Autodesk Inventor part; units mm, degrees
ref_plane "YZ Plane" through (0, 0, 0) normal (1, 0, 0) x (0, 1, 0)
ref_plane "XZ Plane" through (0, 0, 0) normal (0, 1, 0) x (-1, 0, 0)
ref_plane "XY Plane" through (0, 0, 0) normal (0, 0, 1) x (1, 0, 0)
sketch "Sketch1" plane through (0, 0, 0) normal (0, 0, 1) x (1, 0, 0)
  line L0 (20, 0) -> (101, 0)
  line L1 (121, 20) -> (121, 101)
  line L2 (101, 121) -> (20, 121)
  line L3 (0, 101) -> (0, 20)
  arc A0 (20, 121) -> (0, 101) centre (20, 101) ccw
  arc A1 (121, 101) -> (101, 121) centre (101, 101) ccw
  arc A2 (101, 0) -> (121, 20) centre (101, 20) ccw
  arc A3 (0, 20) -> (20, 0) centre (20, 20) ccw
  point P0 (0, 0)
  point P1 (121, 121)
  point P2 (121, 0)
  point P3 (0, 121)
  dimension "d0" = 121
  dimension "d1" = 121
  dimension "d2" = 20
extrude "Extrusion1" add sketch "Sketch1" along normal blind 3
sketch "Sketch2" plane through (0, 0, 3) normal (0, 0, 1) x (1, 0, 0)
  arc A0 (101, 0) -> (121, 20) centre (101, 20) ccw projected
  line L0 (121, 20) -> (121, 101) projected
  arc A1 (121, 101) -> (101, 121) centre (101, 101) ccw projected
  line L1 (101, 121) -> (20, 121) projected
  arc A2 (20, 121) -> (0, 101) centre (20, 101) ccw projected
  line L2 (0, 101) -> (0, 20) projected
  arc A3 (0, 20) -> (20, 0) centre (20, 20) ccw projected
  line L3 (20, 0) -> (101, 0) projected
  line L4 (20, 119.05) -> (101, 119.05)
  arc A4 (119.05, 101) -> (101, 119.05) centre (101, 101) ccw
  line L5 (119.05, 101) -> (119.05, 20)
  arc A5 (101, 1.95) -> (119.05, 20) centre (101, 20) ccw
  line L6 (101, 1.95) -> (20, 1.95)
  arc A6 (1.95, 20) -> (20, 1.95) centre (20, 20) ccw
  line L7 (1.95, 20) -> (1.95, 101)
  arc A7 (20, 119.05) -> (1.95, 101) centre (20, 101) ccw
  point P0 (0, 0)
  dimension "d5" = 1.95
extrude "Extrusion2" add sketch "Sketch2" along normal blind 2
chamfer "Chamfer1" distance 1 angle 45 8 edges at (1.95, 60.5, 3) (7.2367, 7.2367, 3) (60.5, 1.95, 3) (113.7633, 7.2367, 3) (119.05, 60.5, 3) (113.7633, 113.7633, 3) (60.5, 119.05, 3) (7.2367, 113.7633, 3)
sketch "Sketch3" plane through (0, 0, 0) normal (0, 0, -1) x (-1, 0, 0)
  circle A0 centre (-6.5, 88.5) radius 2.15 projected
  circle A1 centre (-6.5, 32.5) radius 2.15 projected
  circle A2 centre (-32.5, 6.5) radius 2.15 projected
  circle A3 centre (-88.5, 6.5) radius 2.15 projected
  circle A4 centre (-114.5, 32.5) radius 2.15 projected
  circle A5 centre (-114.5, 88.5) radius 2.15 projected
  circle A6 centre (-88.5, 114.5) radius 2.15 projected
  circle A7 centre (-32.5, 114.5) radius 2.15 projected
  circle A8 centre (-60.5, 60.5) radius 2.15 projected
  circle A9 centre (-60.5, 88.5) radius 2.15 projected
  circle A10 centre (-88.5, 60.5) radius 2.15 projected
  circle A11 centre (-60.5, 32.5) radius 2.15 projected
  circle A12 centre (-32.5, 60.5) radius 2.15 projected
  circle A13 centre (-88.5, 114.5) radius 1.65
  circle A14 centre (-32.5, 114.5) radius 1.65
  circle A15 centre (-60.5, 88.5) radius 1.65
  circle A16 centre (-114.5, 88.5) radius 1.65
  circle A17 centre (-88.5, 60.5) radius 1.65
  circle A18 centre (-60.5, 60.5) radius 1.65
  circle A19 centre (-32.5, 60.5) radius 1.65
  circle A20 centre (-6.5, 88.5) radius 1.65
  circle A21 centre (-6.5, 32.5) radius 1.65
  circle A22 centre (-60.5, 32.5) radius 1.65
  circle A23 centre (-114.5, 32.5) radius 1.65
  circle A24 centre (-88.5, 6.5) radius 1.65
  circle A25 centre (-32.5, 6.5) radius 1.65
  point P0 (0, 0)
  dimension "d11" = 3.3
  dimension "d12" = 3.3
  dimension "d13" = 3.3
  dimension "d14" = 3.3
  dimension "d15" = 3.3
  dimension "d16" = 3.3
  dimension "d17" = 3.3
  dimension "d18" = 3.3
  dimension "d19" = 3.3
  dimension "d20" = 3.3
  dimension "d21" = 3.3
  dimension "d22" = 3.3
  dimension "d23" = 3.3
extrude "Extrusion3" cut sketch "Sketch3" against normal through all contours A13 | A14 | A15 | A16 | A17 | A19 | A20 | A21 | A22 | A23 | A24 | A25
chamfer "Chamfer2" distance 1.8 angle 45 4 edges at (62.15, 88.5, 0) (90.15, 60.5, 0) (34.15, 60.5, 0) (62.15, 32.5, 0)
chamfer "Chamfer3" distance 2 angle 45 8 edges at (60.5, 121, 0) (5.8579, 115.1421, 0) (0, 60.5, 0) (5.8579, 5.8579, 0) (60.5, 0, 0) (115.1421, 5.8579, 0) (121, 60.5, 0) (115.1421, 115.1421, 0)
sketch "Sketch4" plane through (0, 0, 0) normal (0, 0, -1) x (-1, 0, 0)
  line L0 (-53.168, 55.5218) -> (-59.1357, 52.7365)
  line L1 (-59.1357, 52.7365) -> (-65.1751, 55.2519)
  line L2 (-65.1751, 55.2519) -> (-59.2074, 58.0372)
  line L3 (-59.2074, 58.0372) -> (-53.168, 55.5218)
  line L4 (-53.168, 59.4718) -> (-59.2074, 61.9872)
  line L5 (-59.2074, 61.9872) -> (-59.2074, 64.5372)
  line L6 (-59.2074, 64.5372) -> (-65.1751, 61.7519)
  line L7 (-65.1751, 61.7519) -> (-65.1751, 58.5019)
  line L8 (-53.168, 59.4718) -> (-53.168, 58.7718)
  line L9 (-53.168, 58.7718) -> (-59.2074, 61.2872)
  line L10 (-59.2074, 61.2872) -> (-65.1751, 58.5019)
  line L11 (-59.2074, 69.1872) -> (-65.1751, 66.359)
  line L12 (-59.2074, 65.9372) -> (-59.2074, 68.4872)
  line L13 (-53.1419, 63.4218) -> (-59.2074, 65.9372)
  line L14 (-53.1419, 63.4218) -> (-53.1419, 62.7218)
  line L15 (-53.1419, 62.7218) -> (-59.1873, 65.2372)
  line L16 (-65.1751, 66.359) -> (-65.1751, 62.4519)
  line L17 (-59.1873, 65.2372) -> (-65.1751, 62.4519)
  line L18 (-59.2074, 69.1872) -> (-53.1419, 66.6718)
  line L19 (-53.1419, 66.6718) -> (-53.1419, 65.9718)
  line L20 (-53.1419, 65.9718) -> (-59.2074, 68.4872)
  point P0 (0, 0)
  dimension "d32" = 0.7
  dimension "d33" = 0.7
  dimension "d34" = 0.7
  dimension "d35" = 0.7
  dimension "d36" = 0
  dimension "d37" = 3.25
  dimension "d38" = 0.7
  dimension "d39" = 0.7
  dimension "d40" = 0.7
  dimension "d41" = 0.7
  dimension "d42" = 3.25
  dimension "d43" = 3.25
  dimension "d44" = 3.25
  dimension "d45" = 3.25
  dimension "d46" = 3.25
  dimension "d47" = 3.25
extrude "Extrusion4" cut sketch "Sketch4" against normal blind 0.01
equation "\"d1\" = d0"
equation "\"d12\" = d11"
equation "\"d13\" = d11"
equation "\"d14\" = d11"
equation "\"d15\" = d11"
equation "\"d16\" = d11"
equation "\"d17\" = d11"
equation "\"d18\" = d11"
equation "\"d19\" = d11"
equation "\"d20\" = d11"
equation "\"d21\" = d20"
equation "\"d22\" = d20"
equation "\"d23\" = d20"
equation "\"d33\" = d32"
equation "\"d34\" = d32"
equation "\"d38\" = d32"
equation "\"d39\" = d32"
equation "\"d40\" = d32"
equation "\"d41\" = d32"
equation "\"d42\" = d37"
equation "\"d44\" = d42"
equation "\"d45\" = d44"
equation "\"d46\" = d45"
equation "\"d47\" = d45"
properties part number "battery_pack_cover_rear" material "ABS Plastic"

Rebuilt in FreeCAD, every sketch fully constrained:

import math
import FreeCAD as App
import Part
import Sketcher
Q = App.Units.Quantity


def edges_at(feature, points):
    """Names of the edges that pass closest to the given points."""
    edges = feature.Shape.Edges
    near = lambda p: min(range(len(edges)), key=lambda i: edges[i].distToShape(Part.Vertex(*p))[0])
    return sorted({f"Edge{near(p) + 1}" for p in points})

doc = App.newDocument("Part")
body = doc.addObject("PartDesign::Body", "Body")

# Sketch on XY plane
sketch1 = body.newObject("Sketcher::SketchObject", "Sketch")
sketch1.AttachmentSupport = (doc.getObject("XY_Plane"), [""])
sketch1.MapMode = "FlatFace"
sketch1.addGeometry(Part.ArcOfCircle(Part.Circle(App.Vector(20, 20, 0), App.Vector(0, 0, 1), 20), math.radians(180), math.radians(270)), False)
sketch1.addGeometry(Part.LineSegment(App.Vector(20, 0, 0), App.Vector(101, 0, 0)), False)
sketch1.addGeometry(Part.ArcOfCircle(Part.Circle(App.Vector(101, 20, 0), App.Vector(0, 0, 1), 20), math.radians(-90), math.radians(0)), False)
sketch1.addGeometry(Part.LineSegment(App.Vector(121, 20, 0), App.Vector(121, 101, 0)), False)
sketch1.addGeometry(Part.ArcOfCircle(Part.Circle(App.Vector(101, 101, 0), App.Vector(0, 0, 1), 20), math.radians(0), math.radians(90)), False)
sketch1.addGeometry(Part.LineSegment(App.Vector(101, 121, 0), App.Vector(20, 121, 0)), False)
sketch1.addGeometry(Part.ArcOfCircle(Part.Circle(App.Vector(20, 101, 0), App.Vector(0, 0, 1), 20), math.radians(90), math.radians(180)), False)
sketch1.addGeometry(Part.LineSegment(App.Vector(0, 101, 0), App.Vector(0, 20, 0)), False)
sketch1.addConstraint(Sketcher.Constraint("Tangent", 0, 2, 1, 1))
sketch1.addConstraint(Sketcher.Constraint("Tangent", 1, 2, 2, 1))
sketch1.addConstraint(Sketcher.Constraint("Tangent", 2, 2, 3, 1))
sketch1.addConstraint(Sketcher.Constraint("Tangent", 3, 2, 4, 1))
sketch1.addConstraint(Sketcher.Constraint("Tangent", 4, 2, 5, 1))
sketch1.addConstraint(Sketcher.Constraint("Tangent", 5, 2, 6, 1))
sketch1.addConstraint(Sketcher.Constraint("Tangent", 6, 2, 7, 1))
sketch1.addConstraint(Sketcher.Constraint("Tangent", 7, 2, 0, 1))
sketch1.addConstraint(Sketcher.Constraint("Horizontal", 1))
sketch1.addConstraint(Sketcher.Constraint("Vertical", 3))
sketch1.addConstraint(Sketcher.Constraint("Horizontal", 5))
sketch1.addConstraint(Sketcher.Constraint("Vertical", 7))
sketch1.addConstraint(Sketcher.Constraint("Equal", 0, 2))
sketch1.addConstraint(Sketcher.Constraint("Equal", 2, 4))
sketch1.addConstraint(Sketcher.Constraint("Equal", 4, 6))
sketch1.addConstraint(Sketcher.Constraint("PointOnObject", 0, 2, -1))
sketch1.addConstraint(Sketcher.Constraint("PointOnObject", 6, 2, -2))
sketch1.addConstraint(Sketcher.Constraint("Equal", 5, 3))
sketch1.addConstraint(Sketcher.Constraint("Radius", 0, Q("20 mm")))
sketch1.addConstraint(Sketcher.Constraint("DistanceX", -1, 1, 2, 2, Q("121 mm")))
pad1 = body.newObject("PartDesign::Pad", "Pad")
pad1.Profile = sketch1
pad1.Length = 3

# Sketch on XY plane
sketch2 = body.newObject("Sketcher::SketchObject", "Sketch001")
sketch2.AttachmentSupport = (doc.getObject("XY_Plane"), [""])
sketch2.MapMode = "FlatFace"
sketch2.AttachmentOffset = App.Placement(App.Vector(0, 0, 3), App.Rotation())
sketch2.addGeometry(Part.LineSegment(App.Vector(20, 0, 0), App.Vector(101, 0, 0)), False)
sketch2.addGeometry(Part.ArcOfCircle(Part.Circle(App.Vector(101, 20, 0), App.Vector(0, 0, 1), 20), math.radians(-90), math.radians(0)), False)
sketch2.addGeometry(Part.LineSegment(App.Vector(121, 20, 0), App.Vector(121, 101, 0)), False)
sketch2.addGeometry(Part.ArcOfCircle(Part.Circle(App.Vector(101, 101, 0), App.Vector(0, 0, 1), 20), math.radians(0), math.radians(90)), False)
sketch2.addGeometry(Part.LineSegment(App.Vector(101, 121, 0), App.Vector(20, 121, 0)), False)
sketch2.addGeometry(Part.ArcOfCircle(Part.Circle(App.Vector(20, 101, 0), App.Vector(0, 0, 1), 20), math.radians(90), math.radians(180)), False)
sketch2.addGeometry(Part.LineSegment(App.Vector(0, 101, 0), App.Vector(0, 20, 0)), False)
sketch2.addGeometry(Part.ArcOfCircle(Part.Circle(App.Vector(20, 20, 0), App.Vector(0, 0, 1), 20), math.radians(180), math.radians(270)), False)
sketch2.addGeometry(Part.ArcOfCircle(Part.Circle(App.Vector(20, 101, 0), App.Vector(0, 0, 1), 18), math.radians(90), math.radians(180)), False)
sketch2.addGeometry(Part.LineSegment(App.Vector(20, 119, 0), App.Vector(101, 119, 0)), False)
sketch2.addGeometry(Part.ArcOfCircle(Part.Circle(App.Vector(101, 101, 0), App.Vector(0, 0, 1), 18), math.radians(0), math.radians(90)), False)
sketch2.addGeometry(Part.LineSegment(App.Vector(119, 101, 0), App.Vector(119, 20, 0)), False)
sketch2.addGeometry(Part.ArcOfCircle(Part.Circle(App.Vector(101, 20, 0), App.Vector(0, 0, 1), 18), math.radians(-90), math.radians(0)), False)
sketch2.addGeometry(Part.LineSegment(App.Vector(101, 2, 0), App.Vector(20, 2, 0)), False)
sketch2.addGeometry(Part.ArcOfCircle(Part.Circle(App.Vector(20, 20, 0), App.Vector(0, 0, 1), 18), math.radians(180), math.radians(270)), False)
sketch2.addGeometry(Part.LineSegment(App.Vector(2, 20, 0), App.Vector(2, 101, 0)), False)
sketch2.addConstraint(Sketcher.Constraint("Tangent", 0, 2, 1, 1))
sketch2.addConstraint(Sketcher.Constraint("Tangent", 1, 2, 2, 1))
sketch2.addConstraint(Sketcher.Constraint("Tangent", 2, 2, 3, 1))
sketch2.addConstraint(Sketcher.Constraint("Tangent", 3, 2, 4, 1))
sketch2.addConstraint(Sketcher.Constraint("Tangent", 4, 2, 5, 1))
sketch2.addConstraint(Sketcher.Constraint("Tangent", 5, 2, 6, 1))
sketch2.addConstraint(Sketcher.Constraint("Tangent", 6, 2, 7, 1))
sketch2.addConstraint(Sketcher.Constraint("Tangent", 7, 2, 0, 1))
sketch2.addConstraint(Sketcher.Constraint("Tangent", 8, 1, 9, 1))
sketch2.addConstraint(Sketcher.Constraint("Tangent", 9, 2, 10, 2))
sketch2.addConstraint(Sketcher.Constraint("Tangent", 10, 1, 11, 1))
sketch2.addConstraint(Sketcher.Constraint("Tangent", 11, 2, 12, 2))
sketch2.addConstraint(Sketcher.Constraint("Tangent", 12, 1, 13, 1))
sketch2.addConstraint(Sketcher.Constraint("Tangent", 13, 2, 14, 2))
sketch2.addConstraint(Sketcher.Constraint("Tangent", 14, 1, 15, 1))
sketch2.addConstraint(Sketcher.Constraint("Tangent", 15, 2, 8, 2))
sketch2.addConstraint(Sketcher.Constraint("Horizontal", 0))
sketch2.addConstraint(Sketcher.Constraint("Vertical", 2))
sketch2.addConstraint(Sketcher.Constraint("Horizontal", 4))
sketch2.addConstraint(Sketcher.Constraint("Vertical", 6))
sketch2.addConstraint(Sketcher.Constraint("Horizontal", 9))
sketch2.addConstraint(Sketcher.Constraint("Vertical", 11))
sketch2.addConstraint(Sketcher.Constraint("Horizontal", 13))
sketch2.addConstraint(Sketcher.Constraint("Vertical", 15))
sketch2.addConstraint(Sketcher.Constraint("Coincident", 8, 3, 5, 3))
sketch2.addConstraint(Sketcher.Constraint("Coincident", 10, 3, 3, 3))
sketch2.addConstraint(Sketcher.Constraint("Coincident", 12, 3, 1, 3))
sketch2.addConstraint(Sketcher.Constraint("Equal", 1, 3))
sketch2.addConstraint(Sketcher.Constraint("Equal", 3, 5))
sketch2.addConstraint(Sketcher.Constraint("Equal", 5, 7))
sketch2.addConstraint(Sketcher.Constraint("Equal", 12, 14))
sketch2.addConstraint(Sketcher.Constraint("PointOnObject", 0, 2, -1))
sketch2.addConstraint(Sketcher.Constraint("PointOnObject", 5, 2, -2))
sketch2.addConstraint(Sketcher.Constraint("Equal", 13, 2))
sketch2.addConstraint(Sketcher.Constraint("Radius", 1, Q("20 mm")))
sketch2.addConstraint(Sketcher.Constraint("DistanceX", 0, 1, 0, 2, Q("81 mm")))
sketch2.addConstraint(Sketcher.Constraint("DistanceY", -1, 1, 12, 1, Q("1.95 mm")))
pad2 = body.newObject("PartDesign::Pad", "Pad001")
pad2.Profile = sketch2
pad2.Length = 2
doc.recompute()

chamfer = body.newObject("PartDesign::Chamfer", "Chamfer")
chamfer.Base = (pad2, edges_at(pad2, [
    (1.95, 60.5, 3),
    (7.237, 7.237, 3),
    (60.5, 1.95, 3),
    (113.763, 7.237, 3),
    (119.05, 60.5, 3),
    (113.763, 113.763, 3),
    (60.5, 119.05, 3),
    (7.237, 113.763, 3),
]))
chamfer.Size = 1

# Sketch on XY plane
sketch3 = body.newObject("Sketcher::SketchObject", "Sketch002")
sketch3.AttachmentSupport = (doc.getObject("XY_Plane"), [""])
sketch3.MapMode = "FlatFace"
sketch3.addGeometry(Part.Circle(App.Vector(88.5, 114.5, 0), App.Vector(0, 0, 1), 1.6), False)
sketch3.addGeometry(Part.Circle(App.Vector(32.5, 114.5, 0), App.Vector(0, 0, 1), 1.6), False)
sketch3.addGeometry(Part.Circle(App.Vector(60.5, 88.5, 0), App.Vector(0, 0, 1), 1.6), False)
sketch3.addGeometry(Part.Circle(App.Vector(114.5, 88.5, 0), App.Vector(0, 0, 1), 1.6), False)
sketch3.addGeometry(Part.Circle(App.Vector(88.5, 60.5, 0), App.Vector(0, 0, 1), 1.6), False)
sketch3.addGeometry(Part.Circle(App.Vector(32.5, 60.5, 0), App.Vector(0, 0, 1), 1.6), False)
sketch3.addGeometry(Part.Circle(App.Vector(6.5, 88.5, 0), App.Vector(0, 0, 1), 1.6), False)
sketch3.addGeometry(Part.Circle(App.Vector(6.5, 32.5, 0), App.Vector(0, 0, 1), 1.6), False)
sketch3.addGeometry(Part.Circle(App.Vector(60.5, 32.5, 0), App.Vector(0, 0, 1), 1.6), False)
sketch3.addGeometry(Part.Circle(App.Vector(114.5, 32.5, 0), App.Vector(0, 0, 1), 1.6), False)
sketch3.addGeometry(Part.Circle(App.Vector(88.5, 6.5, 0), App.Vector(0, 0, 1), 1.6), False)
sketch3.addGeometry(Part.Circle(App.Vector(32.5, 6.5, 0), App.Vector(0, 0, 1), 1.6), False)
sketch3.addConstraint(Sketcher.Constraint("Equal", 0, 1))
sketch3.addConstraint(Sketcher.Constraint("Equal", 1, 2))
sketch3.addConstraint(Sketcher.Constraint("Equal", 2, 3))
sketch3.addConstraint(Sketcher.Constraint("Equal", 3, 4))
sketch3.addConstraint(Sketcher.Constraint("Equal", 4, 5))
sketch3.addConstraint(Sketcher.Constraint("Equal", 5, 6))
sketch3.addConstraint(Sketcher.Constraint("Equal", 6, 7))
sketch3.addConstraint(Sketcher.Constraint("Equal", 7, 8))
sketch3.addConstraint(Sketcher.Constraint("Equal", 8, 9))
sketch3.addConstraint(Sketcher.Constraint("Equal", 9, 10))
sketch3.addConstraint(Sketcher.Constraint("Equal", 10, 11))
sketch3.addConstraint(Sketcher.Constraint("Horizontal", 0, 3, 1, 3))
sketch3.addConstraint(Sketcher.Constraint("Horizontal", 2, 3, 3, 3))
sketch3.addConstraint(Sketcher.Constraint("Horizontal", 4, 3, 5, 3))
sketch3.addConstraint(Sketcher.Constraint("Horizontal", 3, 3, 6, 3))
sketch3.addConstraint(Sketcher.Constraint("Horizontal", 7, 3, 8, 3))
sketch3.addConstraint(Sketcher.Constraint("Horizontal", 8, 3, 9, 3))
sketch3.addConstraint(Sketcher.Constraint("Horizontal", 10, 3, 11, 3))
sketch3.addConstraint(Sketcher.Constraint("Vertical", 0, 3, 4, 3))
sketch3.addConstraint(Sketcher.Constraint("Vertical", 1, 3, 5, 3))
sketch3.addConstraint(Sketcher.Constraint("Vertical", 6, 3, 7, 3))
sketch3.addConstraint(Sketcher.Constraint("Vertical", 2, 3, 8, 3))
sketch3.addConstraint(Sketcher.Constraint("Vertical", 3, 3, 9, 3))
sketch3.addConstraint(Sketcher.Constraint("Vertical", 4, 3, 10, 3))
sketch3.addConstraint(Sketcher.Constraint("Vertical", 5, 3, 11, 3))
sketch3.addConstraint(Sketcher.Constraint("Diameter", 0, Q("3.3 mm")))
sketch3.addConstraint(Sketcher.Constraint("DistanceX", 1, 3, 0, 3, Q("56 mm")))
sketch3.addConstraint(Sketcher.Constraint("DistanceX", 2, 3, 0, 3, Q("28 mm")))
sketch3.addConstraint(Sketcher.Constraint("DistanceY", 2, 3, 0, 3, Q("26 mm")))
sketch3.addConstraint(Sketcher.Constraint("DistanceX", 0, 3, 3, 3, Q("26 mm")))
sketch3.addConstraint(Sketcher.Constraint("DistanceY", 4, 3, 3, 3, Q("28 mm")))
sketch3.addConstraint(Sketcher.Constraint("DistanceX", 6, 3, 1, 3, Q("26 mm")))
sketch3.addConstraint(Sketcher.Constraint("DistanceY", 7, 3, 5, 3, Q("28 mm")))
sketch3.addConstraint(Sketcher.Constraint("DistanceY", 10, 3, 9, 3, Q("26 mm")))
sketch3.addConstraint(Sketcher.Constraint("DistanceX", -1, 1, 0, 3, Q("88.5 mm")))
sketch3.addConstraint(Sketcher.Constraint("DistanceY", -1, 1, 0, 3, Q("114.5 mm")))
pocket1 = body.newObject("PartDesign::Pocket", "Pocket")
pocket1.Profile = sketch3
pocket1.Type = "ThroughAll"
pocket1.Reversed = True
doc.recompute()

chamfer2 = body.newObject("PartDesign::Chamfer", "Chamfer001")
chamfer2.Base = (pocket1, edges_at(pocket1, [
    (62.15, 88.5, 0),
    (90.15, 60.5, 0),
    (34.15, 60.5, 0),
    (62.15, 32.5, 0),
]))
chamfer2.Size = 1.8
doc.recompute()

chamfer3 = body.newObject("PartDesign::Chamfer", "Chamfer002")
chamfer3.Base = (chamfer2, edges_at(chamfer2, [
    (60.5, 121, 0),
    (5.858, 115.142, 0),
    (0, 60.5, 0),
    (5.858, 5.858, 0),
    (60.5, 0, 0),
    (115.142, 5.858, 0),
    (121, 60.5, 0),
    (115.142, 115.142, 0),
]))
chamfer3.Size = 2

# Sketch on XY plane
sketch4 = body.newObject("Sketcher::SketchObject", "Sketch003")
sketch4.AttachmentSupport = (doc.getObject("XY_Plane"), [""])
sketch4.MapMode = "FlatFace"
sketch4.addGeometry(Part.LineSegment(App.Vector(59.1357, 52.7365, 0), App.Vector(53.168, 55.5218, 0)), False)
sketch4.addGeometry(Part.LineSegment(App.Vector(53.168, 55.5218, 0), App.Vector(59.2074, 58.0372, 0)), False)
sketch4.addGeometry(Part.LineSegment(App.Vector(59.2074, 58.0372, 0), App.Vector(65.1751, 55.2519, 0)), False)
sketch4.addGeometry(Part.LineSegment(App.Vector(65.1751, 55.2519, 0), App.Vector(59.1357, 52.7365, 0)), False)
sketch4.addGeometry(Part.LineSegment(App.Vector(53.168, 58.7718, 0), App.Vector(53.168, 59.4718, 0)), False)
sketch4.addGeometry(Part.LineSegment(App.Vector(53.168, 59.4718, 0), App.Vector(59.2074, 61.9872, 0)), False)
sketch4.addGeometry(Part.LineSegment(App.Vector(59.2074, 61.9872, 0), App.Vector(59.2074, 64.5372, 0)), False)
sketch4.addGeometry(Part.LineSegment(App.Vector(59.2074, 64.5372, 0), App.Vector(65.1751, 61.7519, 0)), False)
sketch4.addGeometry(Part.LineSegment(App.Vector(65.1751, 61.7519, 0), App.Vector(65.1751, 58.5019, 0)), False)
sketch4.addGeometry(Part.LineSegment(App.Vector(65.1751, 58.5019, 0), App.Vector(59.2074, 61.2872, 0)), False)
sketch4.addGeometry(Part.LineSegment(App.Vector(59.2074, 61.2872, 0), App.Vector(53.168, 58.7718, 0)), False)
sketch4.addGeometry(Part.LineSegment(App.Vector(53.1419, 66.6718, 0), App.Vector(59.2074, 69.1872, 0)), False)
sketch4.addGeometry(Part.LineSegment(App.Vector(59.2074, 69.1872, 0), App.Vector(65.1751, 66.359, 0)), False)
sketch4.addGeometry(Part.LineSegment(App.Vector(65.1751, 66.359, 0), App.Vector(65.1751, 62.4519, 0)), False)
sketch4.addGeometry(Part.LineSegment(App.Vector(65.1751, 62.4519, 0), App.Vector(59.1873, 65.2372, 0)), False)
sketch4.addGeometry(Part.LineSegment(App.Vector(59.1873, 65.2372, 0), App.Vector(53.1419, 62.7218, 0)), False)
sketch4.addGeometry(Part.LineSegment(App.Vector(53.1419, 62.7218, 0), App.Vector(53.1419, 63.4218, 0)), False)
sketch4.addGeometry(Part.LineSegment(App.Vector(53.1419, 63.4218, 0), App.Vector(59.2074, 65.9372, 0)), False)
sketch4.addGeometry(Part.LineSegment(App.Vector(59.2074, 65.9372, 0), App.Vector(59.2074, 68.4872, 0)), False)
sketch4.addGeometry(Part.LineSegment(App.Vector(59.2074, 68.4872, 0), App.Vector(53.1419, 65.9718, 0)), False)
sketch4.addGeometry(Part.LineSegment(App.Vector(53.1419, 65.9718, 0), App.Vector(53.1419, 66.6718, 0)), False)
sketch4.addConstraint(Sketcher.Constraint("Coincident", 0, 2, 1, 1))
sketch4.addConstraint(Sketcher.Constraint("Coincident", 1, 2, 2, 1))
sketch4.addConstraint(Sketcher.Constraint("Coincident", 2, 2, 3, 1))
sketch4.addConstraint(Sketcher.Constraint("Coincident", 3, 2, 0, 1))
sketch4.addConstraint(Sketcher.Constraint("Coincident", 4, 2, 5, 1))
sketch4.addConstraint(Sketcher.Constraint("Coincident", 5, 2, 6, 1))
sketch4.addConstraint(Sketcher.Constraint("Coincident", 6, 2, 7, 1))
sketch4.addConstraint(Sketcher.Constraint("Coincident", 7, 2, 8, 1))
sketch4.addConstraint(Sketcher.Constraint("Coincident", 8, 2, 9, 1))
sketch4.addConstraint(Sketcher.Constraint("Coincident", 9, 2, 10, 1))
sketch4.addConstraint(Sketcher.Constraint("Coincident", 10, 2, 4, 1))
sketch4.addConstraint(Sketcher.Constraint("Coincident", 11, 2, 12, 1))
sketch4.addConstraint(Sketcher.Constraint("Coincident", 12, 2, 13, 1))
sketch4.addConstraint(Sketcher.Constraint("Coincident", 13, 2, 14, 1))
sketch4.addConstraint(Sketcher.Constraint("Coincident", 14, 2, 15, 1))
sketch4.addConstraint(Sketcher.Constraint("Coincident", 15, 2, 16, 1))
sketch4.addConstraint(Sketcher.Constraint("Coincident", 16, 2, 17, 1))
sketch4.addConstraint(Sketcher.Constraint("Coincident", 17, 2, 18, 1))
sketch4.addConstraint(Sketcher.Constraint("Coincident", 18, 2, 19, 1))
sketch4.addConstraint(Sketcher.Constraint("Coincident", 19, 2, 20, 1))
sketch4.addConstraint(Sketcher.Constraint("Coincident", 20, 2, 11, 1))
sketch4.addConstraint(Sketcher.Constraint("Vertical", 4))
sketch4.addConstraint(Sketcher.Constraint("Vertical", 6))
sketch4.addConstraint(Sketcher.Constraint("Vertical", 8))
sketch4.addConstraint(Sketcher.Constraint("Vertical", 13))
sketch4.addConstraint(Sketcher.Constraint("Vertical", 16))
sketch4.addConstraint(Sketcher.Constraint("Vertical", 18))
sketch4.addConstraint(Sketcher.Constraint("Vertical", 20))
sketch4.addConstraint(Sketcher.Constraint("DistanceY", 4, 1, 4, 2, Q("0.7 mm")))
sketch4.addConstraint(Sketcher.Constraint("DistanceY", 16, 1, 16, 2, Q("0.7 mm")))
sketch4.addConstraint(Sketcher.Constraint("DistanceY", 20, 1, 20, 2, Q("0.7 mm")))
sketch4.addConstraint(Sketcher.Constraint("DistanceY", 8, 2, 8, 1, Q("3.25 mm")))
sketch4.addConstraint(Sketcher.Constraint("DistanceY", 9, 2, 5, 2, Q("0.7 mm")))
sketch4.addConstraint(Sketcher.Constraint("DistanceY", 7, 2, 13, 2, Q("0.7 mm")))
sketch4.addConstraint(Sketcher.Constraint("DistanceY", 6, 2, 14, 2, Q("0.7 mm")))
sketch4.addConstraint(Sketcher.Constraint("DistanceY", 14, 2, 17, 2, Q("0.7 mm")))
sketch4.addConstraint(Sketcher.Constraint("DistanceY", 18, 2, 11, 2, Q("0.7 mm")))
sketch4.addConstraint(Sketcher.Constraint("DistanceY", 2, 2, 8, 2, Q("3.25 mm")))
sketch4.addConstraint(Sketcher.Constraint("DistanceY", 1, 2, 9, 2, Q("3.25 mm")))
sketch4.addConstraint(Sketcher.Constraint("DistanceY", 9, 2, 6, 2, Q("3.25 mm")))
sketch4.addConstraint(Sketcher.Constraint("DistanceY", 0, 2, 10, 2, Q("3.25 mm")))
sketch4.addConstraint(Sketcher.Constraint("DistanceY", 4, 2, 15, 2, Q("3.25 mm")))
sketch4.addConstraint(Sketcher.Constraint("DistanceY", 17, 2, 11, 2, Q("3.25 mm")))
sketch4.addConstraint(Sketcher.Constraint("DistanceY", 15, 2, 19, 2, Q("3.25 mm")))
sketch4.addConstraint(Sketcher.Constraint("DistanceY", 13, 2, 13, 1, Q("3.907 mm")))
sketch4.addConstraint(Sketcher.Constraint("DistanceY", 2, 2, 0, 2, Q("0.27 mm")))
sketch4.addConstraint(Sketcher.Constraint("DistanceX", 14, 2, 6, 2, Q("0.02 mm")))
sketch4.addConstraint(Sketcher.Constraint("DistanceX", 14, 2, 9, 2, Q("0.02 mm")))
sketch4.addConstraint(Sketcher.Constraint("DistanceX", 14, 2, 11, 2, Q("0.02 mm")))
sketch4.addConstraint(Sketcher.Constraint("DistanceX", 14, 2, 17, 2, Q("0.02 mm")))
sketch4.addConstraint(Sketcher.Constraint("Distance", 12, Q("6.604 mm")))
sketch4.addConstraint(Sketcher.Constraint("DistanceX", -1, 1, 0, 2, Q("53.168 mm")))
sketch4.addConstraint(Sketcher.Constraint("DistanceX", -1, 1, 2, 2, Q("65.175 mm")))
sketch4.addConstraint(Sketcher.Constraint("DistanceY", -1, 1, 2, 2, Q("55.252 mm")))
sketch4.addConstraint(Sketcher.Constraint("DistanceX", -1, 1, 4, 2, Q("53.168 mm")))
sketch4.addConstraint(Sketcher.Constraint("DistanceX", -1, 1, 7, 2, Q("65.175 mm")))
sketch4.addConstraint(Sketcher.Constraint("DistanceX", -1, 1, 12, 2, Q("65.175 mm")))
sketch4.addConstraint(Sketcher.Constraint("DistanceX", -1, 1, 15, 2, Q("53.142 mm")))
sketch4.addConstraint(Sketcher.Constraint("DistanceX", -1, 1, 19, 2, Q("53.142 mm")))
sketch4.addConstraint(Sketcher.Constraint("Distance", 0, Q("6.5857 mm")))
sketch4.addConstraint(Sketcher.Constraint("Distance", 1, Q("6.5423 mm")))
sketch4.addConstraint(Sketcher.Constraint("Distance", 2, Q("6.5857 mm")))
sketch4.addConstraint(Sketcher.Constraint("Distance", 3, Q("6.5423 mm")))
pocket2 = body.newObject("PartDesign::Pocket", "Pocket001")
pocket2.Profile = sketch4
pocket2.Length = 0.01
pocket2.Reversed = True

doc.recompute()
